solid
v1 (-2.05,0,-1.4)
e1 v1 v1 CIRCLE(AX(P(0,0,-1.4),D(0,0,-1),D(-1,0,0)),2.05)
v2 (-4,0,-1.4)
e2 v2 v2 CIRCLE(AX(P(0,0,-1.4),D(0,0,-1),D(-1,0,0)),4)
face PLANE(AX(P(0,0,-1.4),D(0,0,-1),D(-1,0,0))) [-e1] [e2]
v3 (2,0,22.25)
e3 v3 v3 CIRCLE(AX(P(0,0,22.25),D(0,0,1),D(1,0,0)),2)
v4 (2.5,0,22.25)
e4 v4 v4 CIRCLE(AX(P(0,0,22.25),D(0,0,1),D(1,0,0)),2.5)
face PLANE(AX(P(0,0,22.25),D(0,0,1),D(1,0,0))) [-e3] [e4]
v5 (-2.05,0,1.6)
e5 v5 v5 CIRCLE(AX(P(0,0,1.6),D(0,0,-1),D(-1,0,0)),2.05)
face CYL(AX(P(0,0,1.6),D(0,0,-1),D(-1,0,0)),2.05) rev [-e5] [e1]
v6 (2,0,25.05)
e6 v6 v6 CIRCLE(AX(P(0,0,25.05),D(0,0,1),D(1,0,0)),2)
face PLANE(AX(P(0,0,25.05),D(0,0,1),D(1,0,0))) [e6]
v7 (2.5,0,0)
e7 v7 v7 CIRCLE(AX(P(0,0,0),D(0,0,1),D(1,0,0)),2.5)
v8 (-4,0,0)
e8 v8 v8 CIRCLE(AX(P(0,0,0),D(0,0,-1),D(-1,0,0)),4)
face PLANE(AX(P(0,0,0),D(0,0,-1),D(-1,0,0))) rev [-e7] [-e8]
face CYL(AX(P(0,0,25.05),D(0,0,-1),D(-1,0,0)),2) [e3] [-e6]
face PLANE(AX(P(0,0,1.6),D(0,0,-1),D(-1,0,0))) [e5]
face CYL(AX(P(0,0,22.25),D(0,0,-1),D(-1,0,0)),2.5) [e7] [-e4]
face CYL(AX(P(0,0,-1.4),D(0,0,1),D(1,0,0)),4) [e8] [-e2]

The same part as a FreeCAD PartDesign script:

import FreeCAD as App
import Part
import Sketcher

V = App.Vector

doc = App.newDocument("Part")
body = doc.addObject("PartDesign::Body", "Body")

sketch1 = body.newObject("Sketcher::SketchObject", "Sketch")
sketch1.AttachmentSupport = (doc.getObject("XY_Plane"), [""])
sketch1.MapMode = "FlatFace"
sketch1.addGeometry(Part.Circle(V(0, 0, 0), V(0, 0, 1), 2.5), False)
sketch1.addConstraint(Sketcher.Constraint("Coincident", 0, 3, -1, 1))
sketch1.addConstraint(Sketcher.Constraint("Diameter", 0, 5.0))
pad1 = body.newObject("PartDesign::Pad", "Pad")
pad1.Profile = sketch1
pad1.Length = 22.25

sketch2 = body.newObject("Sketcher::SketchObject", "Sketch001")
sketch2.AttachmentSupport = (doc.getObject("XY_Plane"), [""])
sketch2.MapMode = "FlatFace"
sketch2.addGeometry(Part.Circle(V(0, 0, 0), V(0, 0, 1), 4), False)
sketch2.addConstraint(Sketcher.Constraint("Coincident", 0, 3, -1, 1))
sketch2.addConstraint(Sketcher.Constraint("Diameter", 0, 8.0))
pad2 = body.newObject("PartDesign::Pad", "Pad001")
pad2.Profile = sketch2
pad2.Length = 1.4
pad2.Reversed = True

sketch3 = body.newObject("Sketcher::SketchObject", "Sketch002")
sketch3.AttachmentSupport = (doc.getObject("XY_Plane"), [""])
sketch3.MapMode = "FlatFace"
sketch3.AttachmentOffset = App.Placement(V(0, 0, -1.4), App.Rotation())
sketch3.addGeometry(Part.Circle(V(0, 0, 0), V(0, 0, 1), 2), False)
sketch3.addConstraint(Sketcher.Constraint("Coincident", 0, 3, -1, 1))
sketch3.addConstraint(Sketcher.Constraint("Diameter", 0, 4.1))
pocket1 = body.newObject("PartDesign::Pocket", "Pocket")
pocket1.Profile = sketch3
pocket1.Length = 3
pocket1.Reversed = True

sketch4 = body.newObject("Sketcher::SketchObject", "Sketch003")
sketch4.AttachmentSupport = (doc.getObject("XY_Plane"), [""])
sketch4.MapMode = "FlatFace"
sketch4.AttachmentOffset = App.Placement(V(0, 0, 22.25), App.Rotation())
sketch4.addGeometry(Part.Circle(V(0, 0, 0), V(0, 0, 1), 2), False)
sketch4.addConstraint(Sketcher.Constraint("Coincident", 0, 3, -1, 1))
sketch4.addConstraint(Sketcher.Constraint("Diameter", 0, 4.0))
pad3 = body.newObject("PartDesign::Pad", "Pad002")
pad3.Profile = sketch4
pad3.Length = 2.8

doc.recompute()
